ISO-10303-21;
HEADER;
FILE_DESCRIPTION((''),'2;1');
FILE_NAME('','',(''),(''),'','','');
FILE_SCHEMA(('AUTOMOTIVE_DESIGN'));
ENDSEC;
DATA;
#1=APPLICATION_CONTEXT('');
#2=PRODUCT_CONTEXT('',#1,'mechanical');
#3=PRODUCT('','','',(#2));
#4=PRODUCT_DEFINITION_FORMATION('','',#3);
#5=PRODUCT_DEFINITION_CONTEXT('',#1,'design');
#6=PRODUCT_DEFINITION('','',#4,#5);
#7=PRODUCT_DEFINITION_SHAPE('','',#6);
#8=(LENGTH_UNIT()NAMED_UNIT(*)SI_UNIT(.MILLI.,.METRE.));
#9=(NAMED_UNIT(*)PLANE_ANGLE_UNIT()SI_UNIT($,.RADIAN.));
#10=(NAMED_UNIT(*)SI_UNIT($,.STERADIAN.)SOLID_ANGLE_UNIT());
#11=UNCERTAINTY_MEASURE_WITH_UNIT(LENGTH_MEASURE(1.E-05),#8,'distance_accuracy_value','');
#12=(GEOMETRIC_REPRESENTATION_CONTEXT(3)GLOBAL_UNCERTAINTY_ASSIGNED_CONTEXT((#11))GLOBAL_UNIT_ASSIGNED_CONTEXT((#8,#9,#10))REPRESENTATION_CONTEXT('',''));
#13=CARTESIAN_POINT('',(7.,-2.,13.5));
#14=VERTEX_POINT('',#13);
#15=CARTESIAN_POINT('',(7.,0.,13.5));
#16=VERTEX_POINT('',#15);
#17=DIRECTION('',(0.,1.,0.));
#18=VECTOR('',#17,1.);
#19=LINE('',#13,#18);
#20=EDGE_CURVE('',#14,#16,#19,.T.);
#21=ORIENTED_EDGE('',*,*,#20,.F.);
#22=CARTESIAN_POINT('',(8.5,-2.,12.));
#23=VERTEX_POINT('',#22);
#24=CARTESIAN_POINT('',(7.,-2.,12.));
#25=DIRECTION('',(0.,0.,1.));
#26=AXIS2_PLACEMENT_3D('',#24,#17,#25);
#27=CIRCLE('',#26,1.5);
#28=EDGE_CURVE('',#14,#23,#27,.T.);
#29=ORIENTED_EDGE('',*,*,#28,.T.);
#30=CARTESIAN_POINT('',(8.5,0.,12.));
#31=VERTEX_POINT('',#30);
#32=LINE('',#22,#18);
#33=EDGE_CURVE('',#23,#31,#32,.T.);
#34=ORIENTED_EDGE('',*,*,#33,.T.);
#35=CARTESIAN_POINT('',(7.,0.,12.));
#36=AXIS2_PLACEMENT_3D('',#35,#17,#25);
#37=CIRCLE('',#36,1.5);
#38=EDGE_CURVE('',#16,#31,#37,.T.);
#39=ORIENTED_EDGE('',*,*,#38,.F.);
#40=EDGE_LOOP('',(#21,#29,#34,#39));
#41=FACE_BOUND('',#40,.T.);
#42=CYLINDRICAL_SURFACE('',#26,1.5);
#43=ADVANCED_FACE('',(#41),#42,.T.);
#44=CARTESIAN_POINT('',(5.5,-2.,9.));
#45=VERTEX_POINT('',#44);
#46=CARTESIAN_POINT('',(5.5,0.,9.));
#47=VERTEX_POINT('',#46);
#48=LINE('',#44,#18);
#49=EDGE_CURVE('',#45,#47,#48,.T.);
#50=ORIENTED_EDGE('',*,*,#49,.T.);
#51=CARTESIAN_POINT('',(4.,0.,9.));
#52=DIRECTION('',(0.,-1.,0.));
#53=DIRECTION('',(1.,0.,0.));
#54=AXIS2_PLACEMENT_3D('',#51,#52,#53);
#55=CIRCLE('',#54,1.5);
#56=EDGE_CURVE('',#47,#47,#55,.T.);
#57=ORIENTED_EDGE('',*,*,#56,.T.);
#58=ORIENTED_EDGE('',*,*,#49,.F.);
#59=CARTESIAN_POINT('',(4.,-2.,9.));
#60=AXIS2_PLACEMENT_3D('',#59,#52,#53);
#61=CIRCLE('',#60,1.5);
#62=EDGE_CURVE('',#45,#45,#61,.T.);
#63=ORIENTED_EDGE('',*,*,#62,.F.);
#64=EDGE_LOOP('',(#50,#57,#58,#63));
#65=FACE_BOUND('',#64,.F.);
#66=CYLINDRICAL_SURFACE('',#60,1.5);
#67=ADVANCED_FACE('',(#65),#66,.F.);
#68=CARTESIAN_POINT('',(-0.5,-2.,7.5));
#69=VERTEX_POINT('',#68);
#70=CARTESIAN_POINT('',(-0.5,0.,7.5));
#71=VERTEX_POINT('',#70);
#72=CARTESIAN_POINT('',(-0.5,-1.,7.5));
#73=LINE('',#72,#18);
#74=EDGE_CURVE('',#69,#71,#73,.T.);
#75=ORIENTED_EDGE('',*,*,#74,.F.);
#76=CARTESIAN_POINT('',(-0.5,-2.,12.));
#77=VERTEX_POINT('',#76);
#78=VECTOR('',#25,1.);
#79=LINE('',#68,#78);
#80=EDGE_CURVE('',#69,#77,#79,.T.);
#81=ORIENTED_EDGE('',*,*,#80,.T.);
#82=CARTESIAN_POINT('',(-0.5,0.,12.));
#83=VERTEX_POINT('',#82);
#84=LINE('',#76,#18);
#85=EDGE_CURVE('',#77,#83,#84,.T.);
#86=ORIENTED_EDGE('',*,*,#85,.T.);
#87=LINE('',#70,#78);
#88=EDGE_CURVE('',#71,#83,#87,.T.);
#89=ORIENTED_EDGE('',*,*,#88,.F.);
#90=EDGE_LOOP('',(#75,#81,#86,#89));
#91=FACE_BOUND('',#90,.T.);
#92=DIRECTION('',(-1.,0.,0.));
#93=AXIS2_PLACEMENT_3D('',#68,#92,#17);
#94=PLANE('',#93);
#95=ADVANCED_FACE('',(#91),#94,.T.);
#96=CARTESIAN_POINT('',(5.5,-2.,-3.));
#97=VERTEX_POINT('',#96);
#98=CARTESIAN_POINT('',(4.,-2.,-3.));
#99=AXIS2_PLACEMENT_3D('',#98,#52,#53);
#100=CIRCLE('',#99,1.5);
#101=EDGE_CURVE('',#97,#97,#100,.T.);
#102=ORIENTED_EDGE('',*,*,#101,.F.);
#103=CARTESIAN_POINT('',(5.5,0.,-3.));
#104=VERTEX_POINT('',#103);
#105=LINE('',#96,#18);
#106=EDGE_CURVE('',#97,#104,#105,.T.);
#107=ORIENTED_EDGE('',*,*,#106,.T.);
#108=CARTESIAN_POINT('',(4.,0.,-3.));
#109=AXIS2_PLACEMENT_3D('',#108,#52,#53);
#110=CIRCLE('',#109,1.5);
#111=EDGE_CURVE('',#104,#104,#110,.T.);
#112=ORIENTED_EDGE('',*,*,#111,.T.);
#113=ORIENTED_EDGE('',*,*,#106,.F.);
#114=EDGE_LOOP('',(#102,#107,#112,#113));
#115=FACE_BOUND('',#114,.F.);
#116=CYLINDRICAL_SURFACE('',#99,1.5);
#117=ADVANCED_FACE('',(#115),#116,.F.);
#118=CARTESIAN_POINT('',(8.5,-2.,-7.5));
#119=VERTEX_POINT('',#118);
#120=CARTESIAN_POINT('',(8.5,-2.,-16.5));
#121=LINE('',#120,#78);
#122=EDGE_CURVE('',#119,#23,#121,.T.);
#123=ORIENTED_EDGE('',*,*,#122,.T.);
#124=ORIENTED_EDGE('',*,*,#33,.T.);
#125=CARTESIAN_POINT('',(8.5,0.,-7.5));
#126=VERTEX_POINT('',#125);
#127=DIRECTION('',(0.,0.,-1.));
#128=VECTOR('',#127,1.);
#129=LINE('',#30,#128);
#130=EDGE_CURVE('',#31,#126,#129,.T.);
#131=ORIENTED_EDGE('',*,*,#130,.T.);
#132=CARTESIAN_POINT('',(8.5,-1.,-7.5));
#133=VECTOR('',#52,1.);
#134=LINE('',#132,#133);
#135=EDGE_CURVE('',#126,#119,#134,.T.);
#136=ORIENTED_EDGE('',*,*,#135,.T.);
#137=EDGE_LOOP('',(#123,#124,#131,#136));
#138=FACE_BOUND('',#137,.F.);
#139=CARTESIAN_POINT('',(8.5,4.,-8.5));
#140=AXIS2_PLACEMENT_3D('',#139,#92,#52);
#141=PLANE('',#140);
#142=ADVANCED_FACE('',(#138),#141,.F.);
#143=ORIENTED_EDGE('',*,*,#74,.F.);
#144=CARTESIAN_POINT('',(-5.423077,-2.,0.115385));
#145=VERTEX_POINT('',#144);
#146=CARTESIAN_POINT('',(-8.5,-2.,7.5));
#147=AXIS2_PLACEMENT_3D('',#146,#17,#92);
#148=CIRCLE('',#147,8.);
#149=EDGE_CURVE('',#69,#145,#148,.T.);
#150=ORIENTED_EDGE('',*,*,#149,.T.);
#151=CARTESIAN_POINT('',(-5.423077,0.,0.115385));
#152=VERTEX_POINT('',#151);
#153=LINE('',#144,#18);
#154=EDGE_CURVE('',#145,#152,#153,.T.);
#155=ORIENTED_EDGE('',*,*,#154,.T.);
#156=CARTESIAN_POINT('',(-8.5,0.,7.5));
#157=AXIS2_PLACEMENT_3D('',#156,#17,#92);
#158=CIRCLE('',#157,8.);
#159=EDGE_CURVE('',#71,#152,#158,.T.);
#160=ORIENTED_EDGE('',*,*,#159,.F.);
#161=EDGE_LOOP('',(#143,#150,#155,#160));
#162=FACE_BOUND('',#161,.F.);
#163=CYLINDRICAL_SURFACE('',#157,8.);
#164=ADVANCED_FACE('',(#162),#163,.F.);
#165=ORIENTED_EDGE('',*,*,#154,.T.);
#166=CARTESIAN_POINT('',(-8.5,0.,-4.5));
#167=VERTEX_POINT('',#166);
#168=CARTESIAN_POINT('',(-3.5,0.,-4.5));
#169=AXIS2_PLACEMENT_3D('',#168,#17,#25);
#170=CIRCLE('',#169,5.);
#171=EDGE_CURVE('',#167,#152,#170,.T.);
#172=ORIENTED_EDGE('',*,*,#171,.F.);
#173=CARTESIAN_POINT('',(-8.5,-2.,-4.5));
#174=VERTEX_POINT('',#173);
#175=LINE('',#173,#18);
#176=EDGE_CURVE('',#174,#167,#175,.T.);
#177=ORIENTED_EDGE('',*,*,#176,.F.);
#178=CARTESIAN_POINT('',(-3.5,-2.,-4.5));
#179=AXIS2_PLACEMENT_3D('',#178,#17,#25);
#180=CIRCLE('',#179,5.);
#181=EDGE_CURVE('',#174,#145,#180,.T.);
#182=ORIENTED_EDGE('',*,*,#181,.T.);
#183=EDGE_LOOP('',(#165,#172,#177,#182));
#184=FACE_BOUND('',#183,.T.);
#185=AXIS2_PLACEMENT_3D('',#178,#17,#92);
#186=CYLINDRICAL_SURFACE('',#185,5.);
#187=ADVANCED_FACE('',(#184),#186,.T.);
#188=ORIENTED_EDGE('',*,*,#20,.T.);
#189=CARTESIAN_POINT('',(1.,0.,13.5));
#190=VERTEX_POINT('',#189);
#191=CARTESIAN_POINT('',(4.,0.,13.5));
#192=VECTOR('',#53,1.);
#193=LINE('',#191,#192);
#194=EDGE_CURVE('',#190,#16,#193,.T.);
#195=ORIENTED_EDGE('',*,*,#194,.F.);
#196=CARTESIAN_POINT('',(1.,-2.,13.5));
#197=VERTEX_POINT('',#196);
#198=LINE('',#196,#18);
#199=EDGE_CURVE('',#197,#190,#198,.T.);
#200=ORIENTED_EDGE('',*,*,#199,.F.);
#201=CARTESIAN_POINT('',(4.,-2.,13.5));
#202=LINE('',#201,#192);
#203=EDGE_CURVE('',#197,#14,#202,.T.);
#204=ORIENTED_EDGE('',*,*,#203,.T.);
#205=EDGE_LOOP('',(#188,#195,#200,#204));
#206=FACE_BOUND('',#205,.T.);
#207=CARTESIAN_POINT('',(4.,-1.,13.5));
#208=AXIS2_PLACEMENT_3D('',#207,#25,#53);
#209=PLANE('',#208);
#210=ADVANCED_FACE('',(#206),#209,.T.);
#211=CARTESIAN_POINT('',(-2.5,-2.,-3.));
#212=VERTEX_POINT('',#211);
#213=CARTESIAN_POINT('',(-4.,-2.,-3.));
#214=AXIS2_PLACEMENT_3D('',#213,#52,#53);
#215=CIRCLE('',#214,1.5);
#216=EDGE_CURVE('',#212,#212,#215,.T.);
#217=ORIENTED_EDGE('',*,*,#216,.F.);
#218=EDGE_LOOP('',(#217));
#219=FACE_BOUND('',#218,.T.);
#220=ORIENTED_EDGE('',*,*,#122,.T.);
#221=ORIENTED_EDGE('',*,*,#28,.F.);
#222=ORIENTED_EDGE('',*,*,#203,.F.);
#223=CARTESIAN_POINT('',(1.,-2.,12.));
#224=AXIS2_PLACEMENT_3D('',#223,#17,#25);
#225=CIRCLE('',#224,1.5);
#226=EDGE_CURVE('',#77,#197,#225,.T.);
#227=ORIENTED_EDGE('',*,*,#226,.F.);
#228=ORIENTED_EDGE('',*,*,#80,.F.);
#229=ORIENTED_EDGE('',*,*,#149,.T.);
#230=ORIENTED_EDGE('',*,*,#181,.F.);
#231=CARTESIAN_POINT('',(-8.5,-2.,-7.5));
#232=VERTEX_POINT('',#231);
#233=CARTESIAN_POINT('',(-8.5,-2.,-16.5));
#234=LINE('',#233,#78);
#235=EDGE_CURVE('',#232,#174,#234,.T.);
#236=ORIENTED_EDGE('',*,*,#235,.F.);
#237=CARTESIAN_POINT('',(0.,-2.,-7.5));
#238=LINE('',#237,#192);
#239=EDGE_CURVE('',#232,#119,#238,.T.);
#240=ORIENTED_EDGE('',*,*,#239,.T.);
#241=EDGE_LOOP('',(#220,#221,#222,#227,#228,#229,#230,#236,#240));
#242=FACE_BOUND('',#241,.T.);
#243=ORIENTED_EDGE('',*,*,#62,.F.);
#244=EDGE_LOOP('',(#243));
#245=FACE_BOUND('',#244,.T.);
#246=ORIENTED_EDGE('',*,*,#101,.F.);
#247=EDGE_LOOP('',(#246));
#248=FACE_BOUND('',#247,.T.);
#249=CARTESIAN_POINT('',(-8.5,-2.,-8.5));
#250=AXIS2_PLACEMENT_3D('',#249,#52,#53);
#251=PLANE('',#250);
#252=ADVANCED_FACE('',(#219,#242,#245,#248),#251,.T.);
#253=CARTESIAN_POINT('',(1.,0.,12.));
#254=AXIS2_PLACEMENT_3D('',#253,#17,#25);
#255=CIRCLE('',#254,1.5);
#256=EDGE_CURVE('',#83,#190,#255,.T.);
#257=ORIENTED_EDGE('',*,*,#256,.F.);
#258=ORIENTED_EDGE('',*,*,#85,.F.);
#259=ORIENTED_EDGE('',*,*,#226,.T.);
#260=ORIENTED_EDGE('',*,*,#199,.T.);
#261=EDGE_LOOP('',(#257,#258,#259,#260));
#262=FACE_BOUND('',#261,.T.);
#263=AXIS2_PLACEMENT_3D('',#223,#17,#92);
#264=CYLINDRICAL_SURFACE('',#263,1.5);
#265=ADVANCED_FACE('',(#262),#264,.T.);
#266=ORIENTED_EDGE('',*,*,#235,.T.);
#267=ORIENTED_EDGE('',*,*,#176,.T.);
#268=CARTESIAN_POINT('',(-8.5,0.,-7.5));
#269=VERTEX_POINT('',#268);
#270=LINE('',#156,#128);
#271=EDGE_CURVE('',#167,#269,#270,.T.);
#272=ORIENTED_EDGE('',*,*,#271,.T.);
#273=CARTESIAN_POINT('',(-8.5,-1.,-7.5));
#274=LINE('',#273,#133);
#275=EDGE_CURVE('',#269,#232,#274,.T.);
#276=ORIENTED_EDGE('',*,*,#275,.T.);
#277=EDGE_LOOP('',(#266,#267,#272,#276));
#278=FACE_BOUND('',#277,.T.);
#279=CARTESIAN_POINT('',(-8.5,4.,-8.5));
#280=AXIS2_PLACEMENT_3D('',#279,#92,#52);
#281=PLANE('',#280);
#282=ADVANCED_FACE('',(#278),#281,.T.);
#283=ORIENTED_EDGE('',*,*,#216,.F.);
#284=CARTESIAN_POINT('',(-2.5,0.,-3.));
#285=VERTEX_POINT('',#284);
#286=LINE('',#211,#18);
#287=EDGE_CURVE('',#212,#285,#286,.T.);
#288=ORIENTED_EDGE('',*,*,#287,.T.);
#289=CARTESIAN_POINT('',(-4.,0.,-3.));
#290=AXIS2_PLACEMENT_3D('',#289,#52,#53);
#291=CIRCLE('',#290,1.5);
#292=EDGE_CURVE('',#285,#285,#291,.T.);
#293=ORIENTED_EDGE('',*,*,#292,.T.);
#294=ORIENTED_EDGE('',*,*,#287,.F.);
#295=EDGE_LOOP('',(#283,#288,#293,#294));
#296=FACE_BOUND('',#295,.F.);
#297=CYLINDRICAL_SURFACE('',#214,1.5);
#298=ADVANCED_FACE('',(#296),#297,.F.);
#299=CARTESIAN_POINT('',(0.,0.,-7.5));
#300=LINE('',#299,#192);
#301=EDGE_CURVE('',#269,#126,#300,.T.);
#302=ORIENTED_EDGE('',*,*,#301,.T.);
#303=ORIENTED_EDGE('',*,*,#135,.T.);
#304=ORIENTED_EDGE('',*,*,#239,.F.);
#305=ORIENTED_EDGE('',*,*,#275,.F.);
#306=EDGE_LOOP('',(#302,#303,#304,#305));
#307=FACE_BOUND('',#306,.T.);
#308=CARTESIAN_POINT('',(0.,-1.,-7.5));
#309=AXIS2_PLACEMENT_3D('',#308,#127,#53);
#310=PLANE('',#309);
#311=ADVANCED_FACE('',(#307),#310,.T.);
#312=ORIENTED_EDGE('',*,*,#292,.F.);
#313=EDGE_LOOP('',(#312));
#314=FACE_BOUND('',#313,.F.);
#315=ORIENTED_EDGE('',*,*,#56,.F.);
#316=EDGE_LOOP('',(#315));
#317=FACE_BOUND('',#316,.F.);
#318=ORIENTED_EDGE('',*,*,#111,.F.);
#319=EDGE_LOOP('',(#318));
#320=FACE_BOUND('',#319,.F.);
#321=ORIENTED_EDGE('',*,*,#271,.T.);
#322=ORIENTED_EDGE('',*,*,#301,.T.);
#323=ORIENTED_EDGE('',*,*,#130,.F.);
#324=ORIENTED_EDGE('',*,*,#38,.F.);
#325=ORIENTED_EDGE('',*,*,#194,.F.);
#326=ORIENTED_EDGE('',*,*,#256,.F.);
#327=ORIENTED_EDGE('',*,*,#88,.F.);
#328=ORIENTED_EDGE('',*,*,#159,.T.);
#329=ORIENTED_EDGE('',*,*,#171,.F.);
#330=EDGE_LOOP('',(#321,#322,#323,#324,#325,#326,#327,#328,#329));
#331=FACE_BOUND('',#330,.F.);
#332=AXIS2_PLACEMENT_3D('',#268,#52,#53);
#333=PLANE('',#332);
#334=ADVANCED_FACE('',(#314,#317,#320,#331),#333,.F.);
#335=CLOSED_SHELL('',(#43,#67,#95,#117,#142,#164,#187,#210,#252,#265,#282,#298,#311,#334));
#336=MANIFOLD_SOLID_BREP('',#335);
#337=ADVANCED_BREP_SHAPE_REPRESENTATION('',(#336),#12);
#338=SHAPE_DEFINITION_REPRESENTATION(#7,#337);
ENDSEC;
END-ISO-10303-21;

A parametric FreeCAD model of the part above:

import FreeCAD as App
import Part
import Sketcher
Q = App.Units.Quantity


def edges_at(feature, points):
    """Names of the edges that pass closest to the given points."""
    edges = feature.Shape.Edges
    near = lambda p: min(range(len(edges)), key=lambda i: edges[i].distToShape(Part.Vertex(*p))[0])
    return sorted({f"Edge{near(p) + 1}" for p in points})

doc = App.newDocument("Part")
body = doc.addObject("PartDesign::Body", "Body")

# Sketch on XZ plane
sketch1 = body.newObject("Sketcher::SketchObject", "Sketch")
sketch1.AttachmentSupport = (doc.getObject("XZ_Plane"), [""])
sketch1.MapMode = "FlatFace"
sketch1.addGeometry([
    Part.LineSegment(App.Vector(-8.5, 7.5, 0), App.Vector(-8.5, -7.5, 0)),
    Part.LineSegment(App.Vector(-8.5, -7.5, 0), App.Vector(8.5, -7.5, 0)),
    Part.LineSegment(App.Vector(8.5, -7.5, 0), App.Vector(8.5, 7.5, 0)),
    Part.LineSegment(App.Vector(8.5, 7.5, 0), App.Vector(-8.5, 7.5, 0)),
], False)
sketch1.addConstraint([
    Sketcher.Constraint("Coincident", 0, 2, 1, 1),
    Sketcher.Constraint("Coincident", 1, 2, 2, 1),
    Sketcher.Constraint("Coincident", 2, 2, 3, 1),
    Sketcher.Constraint("Coincident", 3, 2, 0, 1),
    Sketcher.Constraint("Vertical", 0),
    Sketcher.Constraint("Horizontal", 1),
    Sketcher.Constraint("Vertical", 2),
    Sketcher.Constraint("Horizontal", 3),
    Sketcher.Constraint("Symmetric", 0, 2, 2, 2, -1, 1),
    Sketcher.Constraint("DistanceX", 1, 1, 1, 2, Q("17 mm")),
    Sketcher.Constraint("DistanceY", 0, 2, 0, 1, Q("15 mm")),
])
pad1 = body.newObject("PartDesign::Pad", "Pad")
pad1.Profile = sketch1
pad1.Length = 2

# Sketch on XZ plane
sketch2 = body.newObject("Sketcher::SketchObject", "Sketch001")
sketch2.AttachmentSupport = (doc.getObject("XZ_Plane"), [""])
sketch2.MapMode = "FlatFace"
sketch2.AttachmentOffset = App.Placement(App.Vector(0, 0, 2), App.Rotation())
sketch2.addGeometry([
    Part.Circle(App.Vector(-4, -3, 0), App.Vector(0, 0, 1), 1.5),
    Part.Circle(App.Vector(4, -3, 0), App.Vector(0, 0, 1), 1.5),
], False)
sketch2.addConstraint([
    Sketcher.Constraint("Equal", 0, 1),
    Sketcher.Constraint("Symmetric", 0, 3, 1, 3, -2),
    Sketcher.Constraint("Diameter", 0, Q("3 mm")),
    Sketcher.Constraint("DistanceX", 0, 3, -1, 1, Q("4 mm")),
    Sketcher.Constraint("DistanceY", 0, 3, -1, 1, Q("3 mm")),
])
pocket1 = body.newObject("PartDesign::Pocket", "Pocket")
pocket1.Profile = sketch2
pocket1.Length = 25

# Sketch on XY plane
sketch3 = body.newObject("Sketcher::SketchObject", "Sketch002")
sketch3.AttachmentSupport = (doc.getObject("XY_Plane"), [""])
sketch3.MapMode = "FlatFace"
sketch3.AttachmentOffset = App.Placement(App.Vector(0, 0, 7.5), App.Rotation())
sketch3.addGeometry([
    Part.LineSegment(App.Vector(-0.5, 0, 0), App.Vector(-0.5, -2, 0)),
    Part.LineSegment(App.Vector(-0.5, -2, 0), App.Vector(8.5, -2, 0)),
    Part.LineSegment(App.Vector(8.5, -2, 0), App.Vector(8.5, 0, 0)),
    Part.LineSegment(App.Vector(8.5, 0, 0), App.Vector(-0.5, 0, 0)),
], False)
sketch3.addConstraint([
    Sketcher.Constraint("Coincident", 0, 2, 1, 1),
    Sketcher.Constraint("Coincident", 1, 2, 2, 1),
    Sketcher.Constraint("Coincident", 2, 2, 3, 1),
    Sketcher.Constraint("Coincident", 3, 2, 0, 1),
    Sketcher.Constraint("Vertical", 0),
    Sketcher.Constraint("Horizontal", 1),
    Sketcher.Constraint("Vertical", 2),
    Sketcher.Constraint("Horizontal", 3),
    Sketcher.Constraint("PointOnObject", 2, 2, -1),
    Sketcher.Constraint("DistanceX", 1, 1, 1, 2, Q("9 mm")),
    Sketcher.Constraint("DistanceY", 0, 2, 0, 1, Q("2 mm")),
    Sketcher.Constraint("DistanceX", 0, 2, -1, 1, Q("0.5 mm")),
])
pad2 = body.newObject("PartDesign::Pad", "Pad001")
pad2.Profile = sketch3
pad2.Length = 6

# Sketch on XZ plane
sketch4 = body.newObject("Sketcher::SketchObject", "Sketch003")
sketch4.AttachmentSupport = (doc.getObject("XZ_Plane"), [""])
sketch4.MapMode = "FlatFace"
sketch4.AttachmentOffset = App.Placement(App.Vector(0, 0, 2), App.Rotation())
sketch4.addGeometry(Part.Circle(App.Vector(4, 9, 0), App.Vector(0, 0, 1), 1.5), False)
sketch4.addConstraint([
    Sketcher.Constraint("Diameter", 0, Q("3 mm")),
    Sketcher.Constraint("DistanceX", -1, 1, 0, 3, Q("4 mm")),
    Sketcher.Constraint("DistanceY", -1, 1, 0, 3, Q("9 mm")),
])
pocket2 = body.newObject("PartDesign::Pocket", "Pocket001")
pocket2.Profile = sketch4
pocket2.Length = 25
doc.recompute()

fillet = body.newObject("PartDesign::Fillet", "Fillet")
fillet.Base = (pocket2, edges_at(pocket2, [(8.5, -1, 13.5), (-0.5, -1, 13.5)]))
fillet.Radius = 1.5

# Sketch on XY plane
sketch5 = body.newObject("Sketcher::SketchObject", "Sketch004")
sketch5.AttachmentSupport = (doc.getObject("XY_Plane"), [""])
sketch5.MapMode = "FlatFace"
sketch5.AttachmentOffset = App.Placement(App.Vector(0, 0, -7.5), App.Rotation())
sketch5.addGeometry([
    Part.LineSegment(App.Vector(-8.5, -2, 0), App.Vector(-8.5, 0, 0)),
    Part.LineSegment(App.Vector(-8.5, 0, 0), App.Vector(8.5, 0, 0)),
    Part.LineSegment(App.Vector(8.5, 0, 0), App.Vector(8.5, -2, 0)),
    Part.LineSegment(App.Vector(8.5, -2, 0), App.Vector(-8.5, -2, 0)),
], False)
sketch5.addConstraint([
    Sketcher.Constraint("Coincident", 0, 2, 1, 1),
    Sketcher.Constraint("Coincident", 1, 2, 2, 1),
    Sketcher.Constraint("Coincident", 2, 2, 3, 1),
    Sketcher.Constraint("Coincident", 3, 2, 0, 1),
    Sketcher.Constraint("Vertical", 0),
    Sketcher.Constraint("Horizontal", 1),
    Sketcher.Constraint("Vertical", 2),
    Sketcher.Constraint("Horizontal", 3),
    Sketcher.Constraint("Symmetric", 0, 2, 1, 2, -1, 1),
    Sketcher.Constraint("DistanceX", 1, 1, 1, 2, Q("17 mm")),
    Sketcher.Constraint("DistanceY", 0, 1, 0, 2, Q("2 mm")),
])
pad3 = body.newObject("PartDesign::Pad", "Pad002")
pad3.Profile = sketch5
pad3.Length = 1
pad3.Reversed = True

# Sketch on XY plane
sketch6 = body.newObject("Sketcher::SketchObject", "Sketch005")
sketch6.AttachmentSupport = (doc.getObject("XY_Plane"), [""])
sketch6.MapMode = "FlatFace"
sketch6.AttachmentOffset = App.Placement(App.Vector(0, 0, -8.5), App.Rotation())
sketch6.addGeometry([
    Part.LineSegment(App.Vector(-8.5, -2, 0), App.Vector(-8.5, 4, 0)),
    Part.LineSegment(App.Vector(-8.5, 4, 0), App.Vector(8.5, 4, 0)),
    Part.LineSegment(App.Vector(8.5, 4, 0), App.Vector(8.5, -2, 0)),
    Part.LineSegment(App.Vector(8.5, -2, 0), App.Vector(-8.5, -2, 0)),
], False)
sketch6.addConstraint([
    Sketcher.Constraint("Coincident", 0, 2, 1, 1),
    Sketcher.Constraint("Coincident", 1, 2, 2, 1),
    Sketcher.Constraint("Coincident", 2, 2, 3, 1),
    Sketcher.Constraint("Coincident", 3, 2, 0, 1),
    Sketcher.Constraint("Vertical", 0),
    Sketcher.Constraint("Horizontal", 1),
    Sketcher.Constraint("Vertical", 2),
    Sketcher.Constraint("Horizontal", 3),
    Sketcher.Constraint("DistanceX", 1, 1, 1, 2, Q("17 mm")),
    Sketcher.Constraint("DistanceY", 0, 1, 0, 2, Q("6 mm")),
    Sketcher.Constraint("DistanceY", -1, 1, 0, 2, Q("4 mm")),
    Sketcher.Constraint("DistanceX", 0, 2, -1, 1, Q("8.5 mm")),
])
pad4 = body.newObject("PartDesign::Pad", "Pad003")
pad4.Profile = sketch6
pad4.Length = 8
pad4.Reversed = True

# Sketch on XZ plane
sketch7 = body.newObject("Sketcher::SketchObject", "Sketch006")
sketch7.AttachmentSupport = (doc.getObject("XZ_Plane"), [""])
sketch7.MapMode = "FlatFace"
sketch7.AttachmentOffset = App.Placement(App.Vector(0, 0, -4), App.Rotation())
sketch7.addGeometry([
    Part.LineSegment(App.Vector(8.5, -8.5, 0), App.Vector(8.5, -16.5, 0)),
    Part.LineSegment(App.Vector(8.5, -16.5, 0), App.Vector(-8.5, -16.5, 0)),
    Part.LineSegment(App.Vector(-8.5, -16.5, 0), App.Vector(-8.5, -8.5, 0)),
    Part.LineSegment(App.Vector(-8.5, -8.5, 0), App.Vector(8.5, -8.5, 0)),
], False)
sketch7.addConstraint([
    Sketcher.Constraint("Coincident", 0, 2, 1, 1),
    Sketcher.Constraint("Coincident", 1, 2, 2, 1),
    Sketcher.Constraint("Coincident", 2, 2, 3, 1),
    Sketcher.Constraint("Coincident", 3, 2, 0, 1),
    Sketcher.Constraint("Vertical", 0),
    Sketcher.Constraint("Horizontal", 1),
    Sketcher.Constraint("Vertical", 2),
    Sketcher.Constraint("Horizontal", 3),
    Sketcher.Constraint("DistanceX", 1, 2, 1, 1, Q("17 mm")),
    Sketcher.Constraint("DistanceY", 0, 2, 0, 1, Q("8 mm")),
    Sketcher.Constraint("DistanceX", -1, 1, 0, 2, Q("8.5 mm")),
    Sketcher.Constraint("DistanceY", 0, 2, -1, 1, Q("16.5 mm")),
])
pocket3 = body.newObject("PartDesign::Pocket", "Pocket002")
pocket3.Profile = sketch7
pocket3.Length = 25
pocket3.Reversed = True

# Sketch on XY plane
sketch8 = body.newObject("Sketcher::SketchObject", "Sketch007")
sketch8.AttachmentSupport = (doc.getObject("XY_Plane"), [""])
sketch8.MapMode = "FlatFace"
sketch8.AttachmentOffset = App.Placement(App.Vector(0, 0, -8.5), App.Rotation())
sketch8.addGeometry([
    Part.LineSegment(App.Vector(-8.5, -2, 0), App.Vector(-8.5, 0, 0)),
    Part.LineSegment(App.Vector(-8.5, 0, 0), App.Vector(8.5, 0, 0)),
    Part.LineSegment(App.Vector(8.5, 0, 0), App.Vector(8.5, -2, 0)),
    Part.LineSegment(App.Vector(8.5, -2, 0), App.Vector(-8.5, -2, 0)),
], False)
sketch8.addConstraint([
    Sketcher.Constraint("Coincident", 0, 2, 1, 1),
    Sketcher.Constraint("Coincident", 1, 2, 2, 1),
    Sketcher.Constraint("Coincident", 2, 2, 3, 1),
    Sketcher.Constraint("Coincident", 3, 2, 0, 1),
    Sketcher.Constraint("Vertical", 0),
    Sketcher.Constraint("Horizontal", 1),
    Sketcher.Constraint("Vertical", 2),
    Sketcher.Constraint("Horizontal", 3),
    Sketcher.Constraint("Symmetric", 0, 2, 1, 2, -1, 1),
    Sketcher.Constraint("DistanceX", 1, 1, 1, 2, Q("17 mm")),
    Sketcher.Constraint("DistanceY", 0, 1, 0, 2, Q("2 mm")),
])
pocket4 = body.newObject("PartDesign::Pocket", "Pocket003")
pocket4.Profile = sketch8
pocket4.Length = 1
pocket4.Reversed = True

# Sketch on XZ plane
sketch9 = body.newObject("Sketcher::SketchObject", "Sketch008")
sketch9.AttachmentSupport = (doc.getObject("XZ_Plane"), [""])
sketch9.MapMode = "FlatFace"
sketch9.addGeometry(Part.Circle(App.Vector(-8.5, 7.5, 0), App.Vector(0, 0, 1), 8), False)
sketch9.addConstraint([
    Sketcher.Constraint("Diameter", 0, Q("16 mm")),
    Sketcher.Constraint("DistanceX", 0, 3, -1, 1, Q("8.5 mm")),
    Sketcher.Constraint("DistanceY", -1, 1, 0, 3, Q("7.5 mm")),
])
pocket5 = body.newObject("PartDesign::Pocket", "Pocket004")
pocket5.Profile = sketch9
pocket5.Length = 25
pocket5.Reversed = True
doc.recompute()

fillet2 = body.newObject("PartDesign::Fillet", "Fillet001")
fillet2.Base = (pocket5, edges_at(pocket5, [(-8.5, -1, -0.5)]))
fillet2.Radius = 5

doc.recompute()
